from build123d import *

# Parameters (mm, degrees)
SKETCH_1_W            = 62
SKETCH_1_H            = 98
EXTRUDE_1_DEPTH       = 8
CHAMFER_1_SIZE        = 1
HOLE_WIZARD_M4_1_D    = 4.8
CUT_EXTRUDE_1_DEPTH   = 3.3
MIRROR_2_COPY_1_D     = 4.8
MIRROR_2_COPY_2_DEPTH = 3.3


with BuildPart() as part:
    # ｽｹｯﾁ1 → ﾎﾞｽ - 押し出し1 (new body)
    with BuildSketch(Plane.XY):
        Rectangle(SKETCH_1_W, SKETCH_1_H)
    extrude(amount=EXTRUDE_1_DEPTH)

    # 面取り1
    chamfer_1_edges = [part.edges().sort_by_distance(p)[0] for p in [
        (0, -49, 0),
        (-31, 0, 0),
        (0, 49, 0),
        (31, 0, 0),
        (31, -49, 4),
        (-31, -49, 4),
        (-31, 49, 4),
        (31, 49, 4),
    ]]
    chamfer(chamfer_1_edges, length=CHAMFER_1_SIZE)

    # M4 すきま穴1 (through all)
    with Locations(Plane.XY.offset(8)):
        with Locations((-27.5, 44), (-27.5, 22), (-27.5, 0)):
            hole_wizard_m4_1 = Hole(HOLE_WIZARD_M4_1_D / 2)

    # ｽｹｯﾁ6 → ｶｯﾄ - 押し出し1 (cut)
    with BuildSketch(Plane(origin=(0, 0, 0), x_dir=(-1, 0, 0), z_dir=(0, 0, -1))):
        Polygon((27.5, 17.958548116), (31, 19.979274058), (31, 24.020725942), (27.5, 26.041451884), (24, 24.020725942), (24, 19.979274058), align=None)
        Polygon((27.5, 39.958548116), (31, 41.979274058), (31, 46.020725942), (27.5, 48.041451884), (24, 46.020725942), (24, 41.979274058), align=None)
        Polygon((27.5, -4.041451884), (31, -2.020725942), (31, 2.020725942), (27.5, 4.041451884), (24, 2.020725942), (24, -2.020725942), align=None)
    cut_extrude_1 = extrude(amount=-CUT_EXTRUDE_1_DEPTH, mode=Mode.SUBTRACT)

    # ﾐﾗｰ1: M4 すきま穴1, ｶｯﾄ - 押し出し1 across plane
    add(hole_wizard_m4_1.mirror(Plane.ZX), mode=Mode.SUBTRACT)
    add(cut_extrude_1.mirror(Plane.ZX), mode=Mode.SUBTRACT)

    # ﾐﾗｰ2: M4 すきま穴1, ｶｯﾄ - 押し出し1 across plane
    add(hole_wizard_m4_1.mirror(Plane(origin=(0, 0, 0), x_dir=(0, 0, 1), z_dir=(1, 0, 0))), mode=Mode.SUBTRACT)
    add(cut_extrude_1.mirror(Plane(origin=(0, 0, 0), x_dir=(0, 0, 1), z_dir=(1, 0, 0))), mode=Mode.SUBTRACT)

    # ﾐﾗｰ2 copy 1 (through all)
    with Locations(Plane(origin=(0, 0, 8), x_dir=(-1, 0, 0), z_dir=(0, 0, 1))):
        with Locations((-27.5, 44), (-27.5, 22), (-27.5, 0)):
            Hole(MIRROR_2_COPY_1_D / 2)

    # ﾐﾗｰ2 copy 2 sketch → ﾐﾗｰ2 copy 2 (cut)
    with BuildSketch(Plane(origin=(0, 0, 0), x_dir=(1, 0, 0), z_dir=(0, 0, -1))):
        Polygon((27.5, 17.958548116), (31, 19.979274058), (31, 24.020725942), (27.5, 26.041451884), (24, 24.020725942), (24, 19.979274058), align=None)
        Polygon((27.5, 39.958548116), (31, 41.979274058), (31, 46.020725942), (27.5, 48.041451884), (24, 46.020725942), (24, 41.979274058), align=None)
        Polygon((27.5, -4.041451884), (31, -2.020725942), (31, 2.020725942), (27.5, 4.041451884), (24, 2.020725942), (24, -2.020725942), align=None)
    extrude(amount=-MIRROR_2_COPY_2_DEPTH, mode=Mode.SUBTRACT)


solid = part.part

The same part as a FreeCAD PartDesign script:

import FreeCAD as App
import Part
import Sketcher
from FreeCAD import Vector
Q = App.Units.Quantity


def edges_at(feature, points):
    """Names of the edges that pass closest to the given points."""
    edges = feature.Shape.Edges
    near = lambda p: min(range(len(edges)), key=lambda i: edges[i].distToShape(Part.Vertex(*p))[0])
    return sorted({f"Edge{near(p) + 1}" for p in points})


def add_polygon(sketch, points):
    """Adds a closed chain of lines whose ends are joined by coincident constraints."""
    first, n = sketch.GeometryCount, len(points)
    for a, b in zip(points, points[1:] + points[:1]):
        sketch.addGeometry(Part.LineSegment(App.Vector(*a, 0), App.Vector(*b, 0)), False)
    for i in range(n):
        sketch.addConstraint(Sketcher.Constraint("Coincident", first + i, 2, first + (i + 1) % n, 1))

doc = App.newDocument("Part")
params = doc.addObject("Spreadsheet::Sheet", "Params")
for row, (alias, value) in enumerate([
    ("sketch1_width", "62 mm"),
    ("sketch1_height", "98 mm"),
    ("pad1_length", "8 mm"),
    ("chamfer_size", "1 mm"),
    ("sketch2_diameter", "4.8 mm"),
    ("hole_diameter", "4.8 mm"),
    ("pocket1_length", "3.3 mm"),
    ("sketch4_diameter", "4.8 mm"),
    ("hole2_diameter", "4.8 mm"),
    ("pocket2_length", "3.3 mm"),
], start=1):
    params.set(f"A{row}", alias)
    params.set(f"B{row}", "=" + value)
    params.setAlias(f"B{row}", alias)

body = doc.addObject("PartDesign::Body", "Body")

# Sketch on XY plane
sketch1 = body.newObject("Sketcher::SketchObject", "Sketch")
sketch1.AttachmentSupport = (doc.getObject("XY_Plane"), [""])
sketch1.MapMode = "FlatFace"
add_polygon(sketch1, [(-31, 49), (-31, -49), (31, -49), (31, 49)])  # lines 0-3
sketch1.addConstraint(Sketcher.Constraint("Vertical", 0))
sketch1.addConstraint(Sketcher.Constraint("Horizontal", 1))
sketch1.addConstraint(Sketcher.Constraint("Vertical", 2))
sketch1.addConstraint(Sketcher.Constraint("Horizontal", 3))
sketch1.addConstraint(Sketcher.Constraint("Symmetric", 0, 2, 2, 2, -1, 1))
sketch1.addConstraint(Sketcher.Constraint("DistanceX", 1, 1, 1, 2, Q("62 mm")))
sketch1.addConstraint(Sketcher.Constraint("DistanceY", 0, 2, 0, 1, Q("98 mm")))
sketch1.setExpression("Constraints[9]", "Params.sketch1_width")
sketch1.setExpression("Constraints[10]", "Params.sketch1_height")
pad1 = body.newObject("PartDesign::Pad", "Pad")
pad1.Profile = sketch1
pad1.setExpression("Length", "Params.pad1_length")
doc.recompute()

chamfer = body.newObject("PartDesign::Chamfer", "Chamfer")
chamfer.Base = (pad1, edges_at(pad1, [
    (0, -49, 0),
    (-31, 0, 0),
    (0, 49, 0),
    (31, 0, 0),
    (31, -49, 4),
    (-31, -49, 4),
    (-31, 49, 4),
    (31, 49, 4),
]))
chamfer.setExpression("Size", "Params.chamfer_size")

# Sketch on XY plane
sketch2 = body.newObject("Sketcher::SketchObject", "Sketch001")
sketch2.AttachmentSupport = (doc.getObject("XY_Plane"), [""])
sketch2.MapMode = "FlatFace"
sketch2.AttachmentOffset = App.Placement(Vector(0, 0, 8), App.Rotation())
sketch2.addGeometry(Part.Circle(Vector(-27.5, 44, 0), Vector(0, 0, 1), 2.4), False)
sketch2.addGeometry(Part.Circle(Vector(-27.5, 22, 0), Vector(0, 0, 1), 2.4), False)
sketch2.addGeometry(Part.Circle(Vector(-27.5, 0, 0), Vector(0, 0, 1), 2.4), False)
sketch2.addConstraint(Sketcher.Constraint("Equal", 0, 1))
sketch2.addConstraint(Sketcher.Constraint("Equal", 1, 2))
sketch2.addConstraint(Sketcher.Constraint("PointOnObject", 2, 3, -1))
sketch2.addConstraint(Sketcher.Constraint("Vertical", 0, 3, 1, 3))
sketch2.addConstraint(Sketcher.Constraint("Vertical", 1, 3, 2, 3))
sketch2.addConstraint(Sketcher.Constraint("Diameter", 0, Q("4.8 mm")))
sketch2.addConstraint(Sketcher.Constraint("DistanceY", -1, 1, 0, 3, Q("44 mm")))
sketch2.addConstraint(Sketcher.Constraint("DistanceY", -1, 1, 1, 3, Q("22 mm")))
sketch2.addConstraint(Sketcher.Constraint("DistanceX", 0, 3, -1, 1, Q("27.5 mm")))
sketch2.setExpression("Constraints[5]", "Params.sketch2_diameter")
doc.recompute()
hole = body.newObject("PartDesign::Hole", "Hole")
hole.Profile = sketch2
hole.ThreadType = "None"
hole.setExpression("Diameter", "Params.hole_diameter")
hole.DepthType = "ThroughAll"

# Sketch on XY plane
sketch3 = body.newObject("Sketcher::SketchObject", "Sketch002")
sketch3.AttachmentSupport = (doc.getObject("XY_Plane"), [""])
sketch3.MapMode = "FlatFace"
add_polygon(sketch3, [(-27.5, 17.958548), (-31, 19.979274), (-31, 24.020726), (-27.5, 26.041452), (-24, 24.020726), (-24, 19.979274)])  # lines 0-5
add_polygon(sketch3, [(-27.5, 39.958548), (-31, 41.979274), (-31, 46.020726), (-27.5, 48.041452), (-24, 46.020726), (-24, 41.979274)])  # lines 6-11
add_polygon(sketch3, [(-27.5, -4.041452), (-31, -2.020726), (-31, 2.020726), (-27.5, 4.041452), (-24, 2.020726), (-24, -2.020726)])  # lines 12-17
sketch3.addConstraint(Sketcher.Constraint("Vertical", 1))
sketch3.addConstraint(Sketcher.Constraint("Vertical", 4))
sketch3.addConstraint(Sketcher.Constraint("Vertical", 7))
sketch3.addConstraint(Sketcher.Constraint("Vertical", 10))
sketch3.addConstraint(Sketcher.Constraint("Vertical", 13))
sketch3.addConstraint(Sketcher.Constraint("Vertical", 16))
sketch3.addConstraint(Sketcher.Constraint("Symmetric", 14, 2, 17, 2, -1))
sketch3.addConstraint(Sketcher.Constraint("Parallel", 0, 3))
sketch3.addConstraint(Sketcher.Constraint("Parallel", 2, 5))
sketch3.addConstraint(Sketcher.Constraint("Parallel", 3, 6))
sketch3.addConstraint(Sketcher.Constraint("Parallel", 5, 8))
sketch3.addConstraint(Sketcher.Constraint("Parallel", 6, 9))
sketch3.addConstraint(Sketcher.Constraint("Parallel", 8, 11))
sketch3.addConstraint(Sketcher.Constraint("Parallel", 9, 12))
sketch3.addConstraint(Sketcher.Constraint("Parallel", 11, 14))
sketch3.addConstraint(Sketcher.Constraint("Parallel", 12, 15))
sketch3.addConstraint(Sketcher.Constraint("Parallel", 14, 17))
sketch3.addConstraint(Sketcher.Constraint("Horizontal", 1, 2, 3, 2))
sketch3.addConstraint(Sketcher.Constraint("Horizontal", 0, 2, 4, 2))
sketch3.addConstraint(Sketcher.Constraint("Horizontal", 7, 2, 9, 2))
sketch3.addConstraint(Sketcher.Constraint("Horizontal", 6, 2, 10, 2))
sketch3.addConstraint(Sketcher.Constraint("Horizontal", 13, 2, 15, 2))
sketch3.addConstraint(Sketcher.Constraint("Horizontal", 12, 2, 16, 2))
sketch3.addConstraint(Sketcher.Constraint("Vertical", 1, 2, 6, 2))
sketch3.addConstraint(Sketcher.Constraint("Vertical", 5, 2, 8, 2))
sketch3.addConstraint(Sketcher.Constraint("Vertical", 7, 2, 12, 2))
sketch3.addConstraint(Sketcher.Constraint("Vertical", 11, 2, 14, 2))
sketch3.addConstraint(Sketcher.Constraint("Equal", 4, 7))
sketch3.addConstraint(Sketcher.Constraint("Equal", 10, 13))
sketch3.addConstraint(Sketcher.Constraint("Angle", 0, Q("150 deg")))
sketch3.addConstraint(Sketcher.Constraint("DistanceX", 0, 2, -1, 1, Q("31 mm")))
sketch3.addConstraint(Sketcher.Constraint("DistanceX", 3, 2, -1, 1, Q("24 mm")))
sketch3.addConstraint(Sketcher.Constraint("DistanceY", 0, 2, 6, 2, Q("22 mm")))
sketch3.addConstraint(Sketcher.Constraint("DistanceY", 12, 2, 0, 2, Q("22 mm")))
sketch3.addConstraint(Sketcher.Constraint("DistanceY", 1, 1, 1, 2, Q("4.041452 mm")))
pocket1 = body.newObject("PartDesign::Pocket", "Pocket")
pocket1.Profile = sketch3
pocket1.setExpression("Length", "Params.pocket1_length")
pocket1.Reversed = True
doc.recompute()

mirrored = body.newObject("PartDesign::Mirrored", "Mirrored")
mirrored.Originals = [hole, pocket1]
mirrored.MirrorPlane = (doc.getObject("XZ_Plane"), [""])
body.Tip = mirrored
doc.recompute()

mirrored2 = body.newObject("PartDesign::Mirrored", "Mirrored001")
mirrored2.Originals = [hole, pocket1]
mirrored2.MirrorPlane = (doc.getObject("YZ_Plane"), [""])
body.Tip = mirrored2

# Sketch on XY plane
sketch4 = body.newObject("Sketcher::SketchObject", "Sketch003")
sketch4.AttachmentSupport = (doc.getObject("XY_Plane"), [""])
sketch4.MapMode = "FlatFace"
sketch4.AttachmentOffset = App.Placement(Vector(0, 0, 8), App.Rotation())
sketch4.addGeometry(Part.Circle(Vector(27.5, -44, 0), Vector(0, 0, 1), 2.4), False)
sketch4.addGeometry(Part.Circle(Vector(27.5, -22, 0), Vector(0, 0, 1), 2.4), False)
sketch4.addGeometry(Part.Circle(Vector(27.5, 0, 0), Vector(0, 0, 1), 2.4), False)
sketch4.addConstraint(Sketcher.Constraint("Equal", 0, 1))
sketch4.addConstraint(Sketcher.Constraint("Equal", 1, 2))
sketch4.addConstraint(Sketcher.Constraint("PointOnObject", 2, 3, -1))
sketch4.addConstraint(Sketcher.Constraint("Vertical", 0, 3, 1, 3))
sketch4.addConstraint(Sketcher.Constraint("Vertical", 1, 3, 2, 3))
sketch4.addConstraint(Sketcher.Constraint("Diameter", 0, Q("4.8 mm")))
sketch4.addConstraint(Sketcher.Constraint("DistanceY", 0, 3, -1, 1, Q("44 mm")))
sketch4.addConstraint(Sketcher.Constraint("DistanceY", 1, 3, -1, 1, Q("22 mm")))
sketch4.addConstraint(Sketcher.Constraint("DistanceX", -1, 1, 0, 3, Q("27.5 mm")))
sketch4.setExpression("Constraints[5]", "Params.sketch4_diameter")
doc.recompute()
hole2 = body.newObject("PartDesign::Hole", "Hole001")
hole2.Profile = sketch4
hole2.ThreadType = "None"
hole2.setExpression("Diameter", "Params.hole2_diameter")
hole2.DepthType = "ThroughAll"

# Sketch on XY plane
sketch5 = body.newObject("Sketcher::SketchObject", "Sketch004")
sketch5.AttachmentSupport = (doc.getObject("XY_Plane"), [""])
sketch5.MapMode = "FlatFace"
add_polygon(sketch5, [(27.5, -17.958548), (31, -19.979274), (31, -24.020726), (27.5, -26.041452), (24, -24.020726), (24, -19.979274)])  # lines 0-5
add_polygon(sketch5, [(27.5, -39.958548), (31, -41.979274), (31, -46.020726), (27.5, -48.041452), (24, -46.020726), (24, -41.979274)])  # lines 6-11
add_polygon(sketch5, [(27.5, 4.041452), (31, 2.020726), (31, -2.020726), (27.5, -4.041452), (24, -2.020726), (24, 2.020726)])  # lines 12-17
sketch5.addConstraint(Sketcher.Constraint("Vertical", 1))
sketch5.addConstraint(Sketcher.Constraint("Vertical", 4))
sketch5.addConstraint(Sketcher.Constraint("Vertical", 7))
sketch5.addConstraint(Sketcher.Constraint("Vertical", 10))
sketch5.addConstraint(Sketcher.Constraint("Vertical", 13))
sketch5.addConstraint(Sketcher.Constraint("Vertical", 16))
sketch5.addConstraint(Sketcher.Constraint("Symmetric", 14, 2, 17, 2, -1))
sketch5.addConstraint(Sketcher.Constraint("Parallel", 0, 3))
sketch5.addConstraint(Sketcher.Constraint("Parallel", 2, 5))
sketch5.addConstraint(Sketcher.Constraint("Parallel", 3, 6))
sketch5.addConstraint(Sketcher.Constraint("Parallel", 5, 8))
sketch5.addConstraint(Sketcher.Constraint("Parallel", 6, 9))
sketch5.addConstraint(Sketcher.Constraint("Parallel", 8, 11))
sketch5.addConstraint(Sketcher.Constraint("Parallel", 9, 12))
sketch5.addConstraint(Sketcher.Constraint("Parallel", 11, 14))
sketch5.addConstraint(Sketcher.Constraint("Parallel", 12, 15))
sketch5.addConstraint(Sketcher.Constraint("Parallel", 14, 17))
sketch5.addConstraint(Sketcher.Constraint("Horizontal", 1, 2, 3, 2))
sketch5.addConstraint(Sketcher.Constraint("Horizontal", 0, 2, 4, 2))
sketch5.addConstraint(Sketcher.Constraint("Horizontal", 7, 2, 9, 2))
sketch5.addConstraint(Sketcher.Constraint("Horizontal", 6, 2, 10, 2))
sketch5.addConstraint(Sketcher.Constraint("Horizontal", 13, 2, 15, 2))
sketch5.addConstraint(Sketcher.Constraint("Horizontal", 12, 2, 16, 2))
sketch5.addConstraint(Sketcher.Constraint("Vertical", 1, 2, 6, 2))
sketch5.addConstraint(Sketcher.Constraint("Vertical", 5, 2, 8, 2))
sketch5.addConstraint(Sketcher.Constraint("Vertical", 7, 2, 12, 2))
sketch5.addConstraint(Sketcher.Constraint("Vertical", 11, 2, 14, 2))
sketch5.addConstraint(Sketcher.Constraint("Equal", 4, 7))
sketch5.addConstraint(Sketcher.Constraint("Equal", 10, 13))
sketch5.addConstraint(Sketcher.Constraint("Angle", 0, Q("-30 deg")))
sketch5.addConstraint(Sketcher.Constraint("DistanceX", -1, 1, 0, 2, Q("31 mm")))
sketch5.addConstraint(Sketcher.Constraint("DistanceX", -1, 1, 3, 2, Q("24 mm")))
sketch5.addConstraint(Sketcher.Constraint("DistanceY", 6, 2, 0, 2, Q("22 mm")))
sketch5.addConstraint(Sketcher.Constraint("DistanceY", 0, 2, 12, 2, Q("22 mm")))
sketch5.addConstraint(Sketcher.Constraint("DistanceY", 1, 2, 1, 1, Q("4.041452 mm")))
pocket2 = body.newObject("PartDesign::Pocket", "Pocket001")
pocket2.Profile = sketch5
pocket2.setExpression("Length", "Params.pocket2_length")
pocket2.Reversed = True

doc.recompute()
